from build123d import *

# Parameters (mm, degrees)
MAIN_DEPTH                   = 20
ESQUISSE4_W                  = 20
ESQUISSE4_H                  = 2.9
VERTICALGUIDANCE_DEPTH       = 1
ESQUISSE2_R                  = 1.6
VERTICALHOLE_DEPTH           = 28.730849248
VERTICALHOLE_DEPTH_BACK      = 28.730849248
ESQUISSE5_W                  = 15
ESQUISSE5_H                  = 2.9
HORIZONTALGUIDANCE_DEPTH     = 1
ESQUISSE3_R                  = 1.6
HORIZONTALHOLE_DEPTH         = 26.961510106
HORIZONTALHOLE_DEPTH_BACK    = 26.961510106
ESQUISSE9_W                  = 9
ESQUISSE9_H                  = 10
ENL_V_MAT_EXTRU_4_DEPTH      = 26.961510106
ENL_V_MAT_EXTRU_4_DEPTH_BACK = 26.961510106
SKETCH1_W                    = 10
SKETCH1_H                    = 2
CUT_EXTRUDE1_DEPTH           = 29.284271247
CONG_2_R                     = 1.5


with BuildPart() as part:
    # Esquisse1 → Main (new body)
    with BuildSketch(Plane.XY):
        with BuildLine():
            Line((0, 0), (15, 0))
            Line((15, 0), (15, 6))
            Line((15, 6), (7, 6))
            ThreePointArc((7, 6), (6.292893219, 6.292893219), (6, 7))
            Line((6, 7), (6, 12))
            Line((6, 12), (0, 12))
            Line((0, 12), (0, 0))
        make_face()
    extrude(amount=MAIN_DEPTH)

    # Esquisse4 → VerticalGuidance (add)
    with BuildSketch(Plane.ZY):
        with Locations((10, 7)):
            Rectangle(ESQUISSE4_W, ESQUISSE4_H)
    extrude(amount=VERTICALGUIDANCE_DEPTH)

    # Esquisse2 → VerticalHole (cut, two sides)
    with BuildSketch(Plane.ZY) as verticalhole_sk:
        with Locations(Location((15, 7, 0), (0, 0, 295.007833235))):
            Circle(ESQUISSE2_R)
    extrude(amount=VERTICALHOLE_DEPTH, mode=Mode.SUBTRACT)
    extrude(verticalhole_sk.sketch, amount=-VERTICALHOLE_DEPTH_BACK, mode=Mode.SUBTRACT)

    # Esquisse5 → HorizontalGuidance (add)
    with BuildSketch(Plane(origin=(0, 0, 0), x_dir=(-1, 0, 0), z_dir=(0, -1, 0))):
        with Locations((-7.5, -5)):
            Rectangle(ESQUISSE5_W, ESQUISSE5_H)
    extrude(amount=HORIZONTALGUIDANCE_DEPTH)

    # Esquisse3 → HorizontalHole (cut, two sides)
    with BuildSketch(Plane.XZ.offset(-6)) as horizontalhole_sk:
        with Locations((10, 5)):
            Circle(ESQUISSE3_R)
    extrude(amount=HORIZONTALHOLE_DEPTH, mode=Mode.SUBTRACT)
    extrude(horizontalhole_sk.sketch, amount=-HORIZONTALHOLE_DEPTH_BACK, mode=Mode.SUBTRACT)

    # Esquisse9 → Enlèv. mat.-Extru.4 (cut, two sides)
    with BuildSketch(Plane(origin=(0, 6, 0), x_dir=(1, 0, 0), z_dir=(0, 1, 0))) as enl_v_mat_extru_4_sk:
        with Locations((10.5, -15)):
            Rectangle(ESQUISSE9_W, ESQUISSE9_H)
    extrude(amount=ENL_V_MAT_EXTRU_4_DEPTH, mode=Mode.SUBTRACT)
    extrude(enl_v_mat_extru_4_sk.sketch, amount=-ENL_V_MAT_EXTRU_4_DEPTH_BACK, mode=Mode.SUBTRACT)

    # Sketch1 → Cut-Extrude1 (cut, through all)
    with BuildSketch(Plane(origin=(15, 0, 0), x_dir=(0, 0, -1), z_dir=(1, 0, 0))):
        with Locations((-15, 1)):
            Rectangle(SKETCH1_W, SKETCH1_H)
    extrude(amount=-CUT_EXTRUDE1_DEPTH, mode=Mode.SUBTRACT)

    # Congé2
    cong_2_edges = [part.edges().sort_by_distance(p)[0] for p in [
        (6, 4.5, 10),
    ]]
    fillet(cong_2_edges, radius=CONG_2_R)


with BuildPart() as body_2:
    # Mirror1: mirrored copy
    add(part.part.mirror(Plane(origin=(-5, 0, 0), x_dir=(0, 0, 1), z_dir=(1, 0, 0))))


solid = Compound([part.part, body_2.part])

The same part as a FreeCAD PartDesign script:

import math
import FreeCAD as App
import Part
import Sketcher

V = App.Vector
Q = App.Units.Quantity


def edges_at(feature, points):
    """Names of the edges that pass closest to the given points."""
    edges = feature.Shape.Edges
    near = lambda p: min(range(len(edges)), key=lambda i: edges[i].distToShape(Part.Vertex(*p))[0])
    return sorted({f"Edge{near(p) + 1}" for p in points})

doc = App.newDocument("Part")
body = doc.addObject("PartDesign::Body", "Body")

sketch1 = doc.addObject("Sketcher::SketchObject", "Sketch")
body.addObject(sketch1)
sketch1.AttachmentSupport = (doc.XY_Plane, [""])
sketch1.MapMode = "FlatFace"
sketch1.addGeometry([
    Part.LineSegment(V(0, 0, 0), V(15, 0, 0)),
    Part.LineSegment(V(15, 0, 0), V(15, 6, 0)),
    Part.LineSegment(V(15, 6, 0), V(7, 6, 0)),
    Part.ArcOfCircle(Part.Circle(V(7, 7, 0), V(0, 0, 1), 1), math.radians(-180), math.radians(-90)),
    Part.LineSegment(V(6, 7, 0), V(6, 12, 0)),
    Part.LineSegment(V(6, 12, 0), V(0, 12, 0)),
    Part.LineSegment(V(0, 12, 0), V(0, 0, 0)),
], False)
sketch1.addConstraint([
    Sketcher.Constraint("Coincident", 0, 2, 1, 1),
    Sketcher.Constraint("Coincident", 1, 2, 2, 1),
    Sketcher.Constraint("Tangent", 2, 2, 3, 2),
    Sketcher.Constraint("Tangent", 3, 1, 4, 1),
    Sketcher.Constraint("Coincident", 4, 2, 5, 1),
    Sketcher.Constraint("Coincident", 5, 2, 6, 1),
    Sketcher.Constraint("Coincident", 6, 2, 0, 1),
    Sketcher.Constraint("Horizontal", 0),
    Sketcher.Constraint("Vertical", 1),
    Sketcher.Constraint("Horizontal", 2),
    Sketcher.Constraint("Vertical", 4),
    Sketcher.Constraint("Horizontal", 5),
    Sketcher.Constraint("Vertical", 6),
    Sketcher.Constraint("Coincident", 6, 2, -1, 1),
    Sketcher.Constraint("Equal", 5, 1),
    Sketcher.Constraint("Radius", 3, Q("1 mm")),
    Sketcher.Constraint("DistanceX", 0, 1, 0, 2, Q("15 mm")),
    Sketcher.Constraint("DistanceX", 2, 2, 2, 1, Q("8 mm")),
    Sketcher.Constraint("DistanceY", 4, 1, 4, 2, Q("5 mm")),
])
pad1 = doc.addObject("PartDesign::Pad", "Pad")
body.addObject(pad1)
pad1.Profile = sketch1
pad1.Length = 20

sketch2 = doc.addObject("Sketcher::SketchObject", "Sketch001")
body.addObject(sketch2)
sketch2.AttachmentSupport = (doc.YZ_Plane, [""])
sketch2.MapMode = "FlatFace"
sketch2.addGeometry([
    Part.LineSegment(V(8.4, 0, 0), V(5.5, 0, 0)),
    Part.LineSegment(V(5.5, 0, 0), V(5.5, 20, 0)),
    Part.LineSegment(V(5.5, 20, 0), V(8.4, 20, 0)),
    Part.LineSegment(V(8.4, 20, 0), V(8.4, 0, 0)),
], False)
sketch2.addConstraint([
    Sketcher.Constraint("Coincident", 0, 2, 1, 1),
    Sketcher.Constraint("Coincident", 1, 2, 2, 1),
    Sketcher.Constraint("Coincident", 2, 2, 3, 1),
    Sketcher.Constraint("Coincident", 3, 2, 0, 1),
    Sketcher.Constraint("Horizontal", 0),
    Sketcher.Constraint("Vertical", 1),
    Sketcher.Constraint("Horizontal", 2),
    Sketcher.Constraint("Vertical", 3),
    Sketcher.Constraint("PointOnObject", 0, 2, -1),
    Sketcher.Constraint("DistanceY", 1, 1, 1, 2, Q("20 mm")),
    Sketcher.Constraint("DistanceX", 0, 2, 0, 1, Q("2.9 mm")),
    Sketcher.Constraint("DistanceX", -1, 1, 0, 2, Q("5.55 mm")),
])
pad2 = doc.addObject("PartDesign::Pad", "Pad001")
body.addObject(pad2)
pad2.Profile = sketch2
pad2.Length = 1
pad2.Reversed = True

sketch3 = doc.addObject("Sketcher::SketchObject", "Sketch002")
body.addObject(sketch3)
sketch3.AttachmentSupport = (doc.YZ_Plane, [""])
sketch3.MapMode = "FlatFace"
sketch3.addGeometry(Part.Circle(V(7, 15, 0), V(0, 0, 1), 1.6), False)
sketch3.addConstraint([
    Sketcher.Constraint("Diameter", 0, Q("3.2 mm")),
    Sketcher.Constraint("DistanceX", -1, 1, 0, 3, Q("7 mm")),
    Sketcher.Constraint("DistanceY", -1, 1, 0, 3, Q("15 mm")),
])
pocket1 = doc.addObject("PartDesign::Pocket", "Pocket")
body.addObject(pocket1)
pocket1.Profile = sketch3
pocket1.Type = "ThroughAll"
pocket1.Midplane = True

sketch4 = doc.addObject("Sketcher::SketchObject", "Sketch003")
body.addObject(sketch4)
sketch4.AttachmentSupport = (doc.XZ_Plane, [""])
sketch4.MapMode = "FlatFace"
sketch4.addGeometry([
    Part.LineSegment(V(15, 3.5, 0), V(15, 6.5, 0)),
    Part.LineSegment(V(15, 6.5, 0), V(0, 6.5, 0)),
    Part.LineSegment(V(0, 6.5, 0), V(0, 3.5, 0)),
    Part.LineSegment(V(0, 3.5, 0), V(15, 3.5, 0)),
], False)
sketch4.addConstraint([
    Sketcher.Constraint("Coincident", 0, 2, 1, 1),
    Sketcher.Constraint("Coincident", 1, 2, 2, 1),
    Sketcher.Constraint("Coincident", 2, 2, 3, 1),
    Sketcher.Constraint("Coincident", 3, 2, 0, 1),
    Sketcher.Constraint("Vertical", 0),
    Sketcher.Constraint("Horizontal", 1),
    Sketcher.Constraint("Vertical", 2),
    Sketcher.Constraint("Horizontal", 3),
    Sketcher.Constraint("PointOnObject", 1, 2, -2),
    Sketcher.Constraint("DistanceX", 1, 2, 1, 1, Q("15 mm")),
    Sketcher.Constraint("DistanceY", 0, 1, 0, 2, Q("2.9 mm")),
    Sketcher.Constraint("DistanceY", -1, 1, 0, 2, Q("6.45 mm")),
])
pad3 = doc.addObject("PartDesign::Pad", "Pad002")
body.addObject(pad3)
pad3.Profile = sketch4
pad3.Length = 1

sketch5 = doc.addObject("Sketcher::SketchObject", "Sketch004")
body.addObject(sketch5)
sketch5.AttachmentSupport = (doc.XZ_Plane, [""])
sketch5.MapMode = "FlatFace"
sketch5.AttachmentOffset = App.Placement(V(0, 0, -6), App.Rotation())
sketch5.addGeometry(Part.Circle(V(10, 5, 0), V(0, 0, 1), 1.6), False)
sketch5.addConstraint([
    Sketcher.Constraint("Diameter", 0, Q("3.2 mm")),
    Sketcher.Constraint("DistanceX", -1, 1, 0, 3, Q("10 mm")),
    Sketcher.Constraint("DistanceY", -1, 1, 0, 3, Q("5 mm")),
])
pocket2 = doc.addObject("PartDesign::Pocket", "Pocket001")
body.addObject(pocket2)
pocket2.Profile = sketch5
pocket2.Type = "ThroughAll"
pocket2.Midplane = True

sketch6 = doc.addObject("Sketcher::SketchObject", "Sketch005")
body.addObject(sketch6)
sketch6.AttachmentSupport = (doc.XZ_Plane, [""])
sketch6.MapMode = "FlatFace"
sketch6.AttachmentOffset = App.Placement(V(0, 0, -6), App.Rotation())
sketch6.addGeometry([
    Part.LineSegment(V(6, 10, 0), V(6, 20, 0)),
    Part.LineSegment(V(6, 20, 0), V(15, 20, 0)),
    Part.LineSegment(V(15, 20, 0), V(15, 10, 0)),
    Part.LineSegment(V(15, 10, 0), V(6, 10, 0)),
], False)
sketch6.addConstraint([
    Sketcher.Constraint("Coincident", 0, 2, 1, 1),
    Sketcher.Constraint("Coincident", 1, 2, 2, 1),
    Sketcher.Constraint("Coincident", 2, 2, 3, 1),
    Sketcher.Constraint("Coincident", 3, 2, 0, 1),
    Sketcher.Constraint("Vertical", 0),
    Sketcher.Constraint("Horizontal", 1),
    Sketcher.Constraint("Vertical", 2),
    Sketcher.Constraint("Horizontal", 3),
    Sketcher.Constraint("DistanceX", 1, 1, 1, 2, Q("9 mm")),
    Sketcher.Constraint("DistanceY", 0, 1, 0, 2, Q("10 mm")),
    Sketcher.Constraint("DistanceX", -1, 1, 0, 2, Q("6 mm")),
    Sketcher.Constraint("DistanceY", -1, 1, 0, 2, Q("20 mm")),
])
pocket3 = doc.addObject("PartDesign::Pocket", "Pocket002")
body.addObject(pocket3)
pocket3.Profile = sketch6
pocket3.Type = "ThroughAll"
pocket3.Midplane = True

sketch7 = doc.addObject("Sketcher::SketchObject", "Sketch006")
body.addObject(sketch7)
sketch7.AttachmentSupport = (doc.YZ_Plane, [""])
sketch7.MapMode = "FlatFace"
sketch7.AttachmentOffset = App.Placement(V(0, 0, 15), App.Rotation())
sketch7.addGeometry([
    Part.LineSegment(V(2, 20, 0), V(0, 20, 0)),
    Part.LineSegment(V(0, 20, 0), V(0, 10, 0)),
    Part.LineSegment(V(0, 10, 0), V(2, 10, 0)),
    Part.LineSegment(V(2, 10, 0), V(2, 20, 0)),
], False)
sketch7.addConstraint([
    Sketcher.Constraint("Coincident", 0, 2, 1, 1),
    Sketcher.Constraint("Coincident", 1, 2, 2, 1),
    Sketcher.Constraint("Coincident", 2, 2, 3, 1),
    Sketcher.Constraint("Coincident", 3, 2, 0, 1),
    Sketcher.Constraint("Horizontal", 0),
    Sketcher.Constraint("Vertical", 1),
    Sketcher.Constraint("Horizontal", 2),
    Sketcher.Constraint("Vertical", 3),
    Sketcher.Constraint("PointOnObject", 0, 2, -2),
    Sketcher.Constraint("DistanceX", 0, 2, 0, 1, Q("2 mm")),
    Sketcher.Constraint("DistanceY", 1, 2, 1, 1, Q("10 mm")),
    Sketcher.Constraint("DistanceY", -1, 1, 0, 2, Q("20 mm")),
])
pocket4 = doc.addObject("PartDesign::Pocket", "Pocket003")
body.addObject(pocket4)
pocket4.Profile = sketch7
pocket4.Type = "ThroughAll"
doc.recompute()

fillet = doc.addObject("PartDesign::Fillet", "Fillet")
body.addObject(fillet)
fillet.Base = (pocket4, edges_at(pocket4, [(6, 4.5, 10)]))
fillet.Radius = 1.5
body2 = doc.addObject("PartDesign::Body", "Body001")
doc.recompute()

mirroring = doc.addObject("Part::Mirroring", "Mirroring")
mirroring.Source = body
mirroring.Base = V(-5, 0, 0)
mirroring.Normal = V(1, 0, 0)
body2.BaseFeature = mirroring
doc.recompute()
mirroring.Visibility = False

doc.recompute()
